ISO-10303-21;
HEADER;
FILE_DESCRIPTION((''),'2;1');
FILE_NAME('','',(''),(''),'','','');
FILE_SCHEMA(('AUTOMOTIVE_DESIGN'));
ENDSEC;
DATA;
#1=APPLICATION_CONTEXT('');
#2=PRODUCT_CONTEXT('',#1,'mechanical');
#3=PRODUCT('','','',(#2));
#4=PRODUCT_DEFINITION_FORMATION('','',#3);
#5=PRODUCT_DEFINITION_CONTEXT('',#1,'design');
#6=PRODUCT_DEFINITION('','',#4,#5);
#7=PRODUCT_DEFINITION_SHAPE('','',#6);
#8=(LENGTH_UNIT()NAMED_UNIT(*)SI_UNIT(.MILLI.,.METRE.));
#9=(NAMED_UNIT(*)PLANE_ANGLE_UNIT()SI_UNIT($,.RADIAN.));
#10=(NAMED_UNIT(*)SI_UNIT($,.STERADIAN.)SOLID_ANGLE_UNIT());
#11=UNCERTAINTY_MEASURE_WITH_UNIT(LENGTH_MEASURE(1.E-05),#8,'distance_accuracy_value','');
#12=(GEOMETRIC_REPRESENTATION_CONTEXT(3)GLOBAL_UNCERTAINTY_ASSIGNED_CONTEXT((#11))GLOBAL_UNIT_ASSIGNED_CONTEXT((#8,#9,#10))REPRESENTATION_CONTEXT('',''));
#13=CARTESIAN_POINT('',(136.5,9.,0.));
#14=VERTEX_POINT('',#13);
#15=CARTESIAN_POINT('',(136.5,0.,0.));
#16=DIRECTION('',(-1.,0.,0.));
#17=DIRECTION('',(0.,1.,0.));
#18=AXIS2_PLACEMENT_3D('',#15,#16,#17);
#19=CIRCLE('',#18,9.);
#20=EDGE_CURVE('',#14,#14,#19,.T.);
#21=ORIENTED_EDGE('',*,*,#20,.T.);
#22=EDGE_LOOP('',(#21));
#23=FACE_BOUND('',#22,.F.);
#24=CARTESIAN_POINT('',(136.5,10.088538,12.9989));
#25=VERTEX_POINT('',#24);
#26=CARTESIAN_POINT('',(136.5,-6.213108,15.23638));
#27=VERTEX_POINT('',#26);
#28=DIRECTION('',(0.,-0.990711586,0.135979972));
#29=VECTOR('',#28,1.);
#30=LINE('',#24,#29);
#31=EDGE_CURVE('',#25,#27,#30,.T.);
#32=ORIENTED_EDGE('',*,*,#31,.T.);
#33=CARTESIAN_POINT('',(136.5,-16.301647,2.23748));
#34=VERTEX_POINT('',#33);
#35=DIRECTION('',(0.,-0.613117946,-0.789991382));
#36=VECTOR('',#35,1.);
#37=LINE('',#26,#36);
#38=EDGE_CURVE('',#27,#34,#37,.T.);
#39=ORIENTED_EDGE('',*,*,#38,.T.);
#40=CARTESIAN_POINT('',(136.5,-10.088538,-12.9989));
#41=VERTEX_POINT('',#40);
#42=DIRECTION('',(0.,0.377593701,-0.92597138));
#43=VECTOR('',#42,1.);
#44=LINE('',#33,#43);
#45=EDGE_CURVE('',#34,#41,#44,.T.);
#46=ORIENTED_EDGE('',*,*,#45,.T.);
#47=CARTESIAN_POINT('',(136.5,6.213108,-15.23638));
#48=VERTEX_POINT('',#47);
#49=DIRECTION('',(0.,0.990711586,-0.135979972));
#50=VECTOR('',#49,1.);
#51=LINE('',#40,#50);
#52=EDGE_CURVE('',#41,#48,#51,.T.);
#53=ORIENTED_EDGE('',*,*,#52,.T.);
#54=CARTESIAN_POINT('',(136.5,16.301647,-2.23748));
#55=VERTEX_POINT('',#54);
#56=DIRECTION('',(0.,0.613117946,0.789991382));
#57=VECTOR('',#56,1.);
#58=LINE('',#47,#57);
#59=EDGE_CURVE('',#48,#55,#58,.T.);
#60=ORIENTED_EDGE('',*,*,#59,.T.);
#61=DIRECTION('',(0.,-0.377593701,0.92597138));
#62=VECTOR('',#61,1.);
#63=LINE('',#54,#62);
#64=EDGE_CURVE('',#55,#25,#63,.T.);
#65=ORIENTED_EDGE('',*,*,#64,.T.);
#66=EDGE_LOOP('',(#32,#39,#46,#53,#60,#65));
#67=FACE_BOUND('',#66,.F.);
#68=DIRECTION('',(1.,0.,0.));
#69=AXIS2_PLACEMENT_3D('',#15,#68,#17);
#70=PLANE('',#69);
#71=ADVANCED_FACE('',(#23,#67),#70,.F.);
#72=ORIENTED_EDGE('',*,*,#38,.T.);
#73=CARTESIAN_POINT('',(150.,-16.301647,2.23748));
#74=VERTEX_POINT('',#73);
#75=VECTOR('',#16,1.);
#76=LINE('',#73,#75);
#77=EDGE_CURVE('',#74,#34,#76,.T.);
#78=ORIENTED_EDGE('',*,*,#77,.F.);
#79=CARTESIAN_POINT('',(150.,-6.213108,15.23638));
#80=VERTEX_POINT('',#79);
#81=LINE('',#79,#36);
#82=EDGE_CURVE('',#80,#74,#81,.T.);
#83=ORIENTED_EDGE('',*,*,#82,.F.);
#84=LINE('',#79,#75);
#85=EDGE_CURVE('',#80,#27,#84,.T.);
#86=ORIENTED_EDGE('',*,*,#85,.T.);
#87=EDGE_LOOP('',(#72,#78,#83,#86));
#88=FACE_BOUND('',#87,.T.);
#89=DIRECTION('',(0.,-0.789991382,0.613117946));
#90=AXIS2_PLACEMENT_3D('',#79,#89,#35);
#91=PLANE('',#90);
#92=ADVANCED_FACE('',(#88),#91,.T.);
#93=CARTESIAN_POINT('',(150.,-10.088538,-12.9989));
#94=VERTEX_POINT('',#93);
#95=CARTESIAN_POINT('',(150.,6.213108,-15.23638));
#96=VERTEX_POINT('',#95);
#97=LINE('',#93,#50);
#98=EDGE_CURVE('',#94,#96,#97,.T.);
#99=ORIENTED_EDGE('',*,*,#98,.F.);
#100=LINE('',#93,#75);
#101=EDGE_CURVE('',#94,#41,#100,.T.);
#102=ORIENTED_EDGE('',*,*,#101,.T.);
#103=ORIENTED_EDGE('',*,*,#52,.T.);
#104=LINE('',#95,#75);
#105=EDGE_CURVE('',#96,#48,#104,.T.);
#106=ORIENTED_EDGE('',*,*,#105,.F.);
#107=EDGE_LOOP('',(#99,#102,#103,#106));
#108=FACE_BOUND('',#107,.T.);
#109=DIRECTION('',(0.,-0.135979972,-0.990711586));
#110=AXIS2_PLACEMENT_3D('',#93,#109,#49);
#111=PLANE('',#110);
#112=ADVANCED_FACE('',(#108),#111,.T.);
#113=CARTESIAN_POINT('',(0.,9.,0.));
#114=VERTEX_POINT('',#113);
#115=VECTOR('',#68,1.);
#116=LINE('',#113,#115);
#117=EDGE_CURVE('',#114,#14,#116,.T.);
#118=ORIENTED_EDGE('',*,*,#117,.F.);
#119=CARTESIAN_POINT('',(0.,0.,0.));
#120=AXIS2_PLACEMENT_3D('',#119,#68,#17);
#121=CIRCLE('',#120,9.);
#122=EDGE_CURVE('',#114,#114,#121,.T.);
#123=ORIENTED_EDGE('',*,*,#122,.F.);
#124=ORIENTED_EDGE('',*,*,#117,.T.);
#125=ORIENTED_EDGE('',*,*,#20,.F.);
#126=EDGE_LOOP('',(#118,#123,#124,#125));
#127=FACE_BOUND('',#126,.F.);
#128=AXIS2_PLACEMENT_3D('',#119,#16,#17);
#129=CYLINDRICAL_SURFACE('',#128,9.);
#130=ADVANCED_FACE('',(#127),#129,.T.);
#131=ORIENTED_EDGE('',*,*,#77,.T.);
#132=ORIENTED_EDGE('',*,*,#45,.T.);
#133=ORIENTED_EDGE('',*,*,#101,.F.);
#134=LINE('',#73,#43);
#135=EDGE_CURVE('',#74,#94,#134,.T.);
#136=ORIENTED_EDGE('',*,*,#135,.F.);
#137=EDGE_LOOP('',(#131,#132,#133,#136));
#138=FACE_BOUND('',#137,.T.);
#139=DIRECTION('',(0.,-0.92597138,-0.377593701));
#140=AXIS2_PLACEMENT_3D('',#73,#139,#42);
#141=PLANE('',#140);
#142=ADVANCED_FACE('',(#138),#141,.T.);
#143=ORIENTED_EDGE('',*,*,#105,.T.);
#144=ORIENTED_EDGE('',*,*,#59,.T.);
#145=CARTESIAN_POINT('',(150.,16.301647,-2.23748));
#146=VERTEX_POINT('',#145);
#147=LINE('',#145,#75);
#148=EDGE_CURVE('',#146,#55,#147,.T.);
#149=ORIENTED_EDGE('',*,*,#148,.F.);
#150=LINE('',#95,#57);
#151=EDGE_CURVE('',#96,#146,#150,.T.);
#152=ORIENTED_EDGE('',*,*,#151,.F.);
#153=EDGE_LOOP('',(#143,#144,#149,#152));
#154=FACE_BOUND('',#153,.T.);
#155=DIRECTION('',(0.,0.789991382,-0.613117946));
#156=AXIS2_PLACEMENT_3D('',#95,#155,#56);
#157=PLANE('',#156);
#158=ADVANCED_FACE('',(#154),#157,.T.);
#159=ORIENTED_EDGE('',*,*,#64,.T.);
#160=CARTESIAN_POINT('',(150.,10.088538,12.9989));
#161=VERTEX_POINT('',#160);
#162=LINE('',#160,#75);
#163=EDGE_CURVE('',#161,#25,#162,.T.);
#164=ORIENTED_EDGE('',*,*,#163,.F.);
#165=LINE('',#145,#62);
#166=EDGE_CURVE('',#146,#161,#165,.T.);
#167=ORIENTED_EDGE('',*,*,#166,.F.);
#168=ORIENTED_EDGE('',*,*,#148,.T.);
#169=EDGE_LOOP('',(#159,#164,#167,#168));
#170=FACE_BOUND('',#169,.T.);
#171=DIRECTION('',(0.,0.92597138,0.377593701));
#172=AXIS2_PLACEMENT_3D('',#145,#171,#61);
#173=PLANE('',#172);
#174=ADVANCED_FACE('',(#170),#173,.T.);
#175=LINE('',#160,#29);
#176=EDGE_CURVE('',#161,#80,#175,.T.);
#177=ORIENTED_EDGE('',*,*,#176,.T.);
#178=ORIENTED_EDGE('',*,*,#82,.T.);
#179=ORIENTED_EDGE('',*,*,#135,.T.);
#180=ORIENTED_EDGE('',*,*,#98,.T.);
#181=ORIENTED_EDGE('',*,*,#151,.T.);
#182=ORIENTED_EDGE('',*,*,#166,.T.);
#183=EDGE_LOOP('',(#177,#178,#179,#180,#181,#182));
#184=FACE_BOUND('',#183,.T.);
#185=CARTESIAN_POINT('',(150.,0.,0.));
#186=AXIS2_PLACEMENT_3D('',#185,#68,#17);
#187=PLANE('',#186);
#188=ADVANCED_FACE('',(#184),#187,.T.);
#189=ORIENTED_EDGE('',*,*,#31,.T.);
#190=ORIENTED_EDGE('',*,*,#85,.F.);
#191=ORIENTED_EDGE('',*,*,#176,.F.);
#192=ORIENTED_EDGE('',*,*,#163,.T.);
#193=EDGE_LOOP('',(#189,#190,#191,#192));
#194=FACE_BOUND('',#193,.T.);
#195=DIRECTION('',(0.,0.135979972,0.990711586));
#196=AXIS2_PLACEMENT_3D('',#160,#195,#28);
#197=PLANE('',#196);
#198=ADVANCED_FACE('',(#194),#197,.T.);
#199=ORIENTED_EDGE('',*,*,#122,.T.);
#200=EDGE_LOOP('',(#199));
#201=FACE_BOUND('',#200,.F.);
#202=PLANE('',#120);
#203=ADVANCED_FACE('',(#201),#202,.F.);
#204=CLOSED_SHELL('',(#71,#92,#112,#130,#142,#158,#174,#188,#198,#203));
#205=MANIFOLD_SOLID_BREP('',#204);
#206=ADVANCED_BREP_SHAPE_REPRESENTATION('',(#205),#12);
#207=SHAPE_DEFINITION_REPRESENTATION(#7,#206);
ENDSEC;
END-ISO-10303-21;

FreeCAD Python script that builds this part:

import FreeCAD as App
import Part
import Sketcher

V = App.Vector
Q = App.Units.Quantity

doc = App.newDocument("Part")
params = doc.addObject("Spreadsheet::Sheet", "Params")
for row, (alias, value) in enumerate([
    ("sketch1_diameter", "18 mm"),
    ("pad1_length", "150 mm"),
    ("pad2_length", "13.5 mm"),
], start=1):
    params.set(f"A{row}", alias)
    params.set(f"B{row}", "=" + value)
    params.setAlias(f"B{row}", alias)

body = doc.addObject("PartDesign::Body", "Body")

sketch1 = body.newObject("Sketcher::SketchObject", "Sketch")
sketch1.AttachmentSupport = (doc.getObject("YZ_Plane"), [""])
sketch1.MapMode = "FlatFace"
sketch1.addGeometry(Part.Circle(V(0, 0, 0), V(0, 0, 1), 9), False)
sketch1.addConstraint(Sketcher.Constraint("Coincident", 0, 3, -1, 1))
sketch1.addConstraint(Sketcher.Constraint("Diameter", 0, Q("18 mm")))
sketch1.setExpression("Constraints[1]", "Params.sketch1_diameter")
pad1 = body.newObject("PartDesign::Pad", "Pad")
pad1.Profile = sketch1
pad1.setExpression("Length", "Params.pad1_length")

sketch2 = body.newObject("Sketcher::SketchObject", "Sketch001")
sketch2.AttachmentSupport = (doc.getObject("YZ_Plane"), [""])
sketch2.MapMode = "FlatFace"
sketch2.AttachmentOffset = App.Placement(V(0, 0, 150), App.Rotation())
sketch2.addGeometry(Part.LineSegment(V(-16, 2, 0), V(-10, -13, 0)), False)
sketch2.addGeometry(Part.LineSegment(V(-10, -13, 0), V(6, -15, 0)), False)
sketch2.addGeometry(Part.LineSegment(V(6, -15, 0), V(16, -2, 0)), False)
sketch2.addGeometry(Part.LineSegment(V(16, -2, 0), V(10, 13, 0)), False)
sketch2.addGeometry(Part.LineSegment(V(10, 13, 0), V(-6, 15, 0)), False)
sketch2.addGeometry(Part.LineSegment(V(-6, 15, 0), V(-16, 2, 0)), False)
sketch2.addConstraint(Sketcher.Constraint("Coincident", 0, 2, 1, 1))
sketch2.addConstraint(Sketcher.Constraint("Coincident", 1, 2, 2, 1))
sketch2.addConstraint(Sketcher.Constraint("Coincident", 2, 2, 3, 1))
sketch2.addConstraint(Sketcher.Constraint("Coincident", 3, 2, 4, 1))
sketch2.addConstraint(Sketcher.Constraint("Coincident", 4, 2, 5, 1))
sketch2.addConstraint(Sketcher.Constraint("Coincident", 5, 2, 0, 1))
sketch2.addConstraint(Sketcher.Constraint("Symmetric", 0, 2, 3, 2, -1, 1))
sketch2.addConstraint(Sketcher.Constraint("Symmetric", 1, 2, 4, 2, -1, 1))
sketch2.addConstraint(Sketcher.Constraint("Symmetric", 2, 2, 5, 2, -1, 1))
sketch2.addConstraint(Sketcher.Constraint("Equal", 0, 1))
sketch2.addConstraint(Sketcher.Constraint("Equal", 1, 2))
sketch2.addConstraint(Sketcher.Constraint("DistanceY", 0, 2, -1, 1, Q("12.9989 mm")))
sketch2.addConstraint(Sketcher.Constraint("DistanceY", 1, 2, 2, 2, Q("12.9989 mm")))
sketch2.addConstraint(Sketcher.Constraint("DistanceY", 1, 2, -1, 1, Q("15.23638 mm")))
sketch2.addConstraint(Sketcher.Constraint("DistanceX", 1, 2, 2, 2, Q("10.088539 mm")))
pad2 = body.newObject("PartDesign::Pad", "Pad001")
pad2.Profile = sketch2
pad2.setExpression("Length", "Params.pad2_length")
pad2.Reversed = True

doc.recompute()
